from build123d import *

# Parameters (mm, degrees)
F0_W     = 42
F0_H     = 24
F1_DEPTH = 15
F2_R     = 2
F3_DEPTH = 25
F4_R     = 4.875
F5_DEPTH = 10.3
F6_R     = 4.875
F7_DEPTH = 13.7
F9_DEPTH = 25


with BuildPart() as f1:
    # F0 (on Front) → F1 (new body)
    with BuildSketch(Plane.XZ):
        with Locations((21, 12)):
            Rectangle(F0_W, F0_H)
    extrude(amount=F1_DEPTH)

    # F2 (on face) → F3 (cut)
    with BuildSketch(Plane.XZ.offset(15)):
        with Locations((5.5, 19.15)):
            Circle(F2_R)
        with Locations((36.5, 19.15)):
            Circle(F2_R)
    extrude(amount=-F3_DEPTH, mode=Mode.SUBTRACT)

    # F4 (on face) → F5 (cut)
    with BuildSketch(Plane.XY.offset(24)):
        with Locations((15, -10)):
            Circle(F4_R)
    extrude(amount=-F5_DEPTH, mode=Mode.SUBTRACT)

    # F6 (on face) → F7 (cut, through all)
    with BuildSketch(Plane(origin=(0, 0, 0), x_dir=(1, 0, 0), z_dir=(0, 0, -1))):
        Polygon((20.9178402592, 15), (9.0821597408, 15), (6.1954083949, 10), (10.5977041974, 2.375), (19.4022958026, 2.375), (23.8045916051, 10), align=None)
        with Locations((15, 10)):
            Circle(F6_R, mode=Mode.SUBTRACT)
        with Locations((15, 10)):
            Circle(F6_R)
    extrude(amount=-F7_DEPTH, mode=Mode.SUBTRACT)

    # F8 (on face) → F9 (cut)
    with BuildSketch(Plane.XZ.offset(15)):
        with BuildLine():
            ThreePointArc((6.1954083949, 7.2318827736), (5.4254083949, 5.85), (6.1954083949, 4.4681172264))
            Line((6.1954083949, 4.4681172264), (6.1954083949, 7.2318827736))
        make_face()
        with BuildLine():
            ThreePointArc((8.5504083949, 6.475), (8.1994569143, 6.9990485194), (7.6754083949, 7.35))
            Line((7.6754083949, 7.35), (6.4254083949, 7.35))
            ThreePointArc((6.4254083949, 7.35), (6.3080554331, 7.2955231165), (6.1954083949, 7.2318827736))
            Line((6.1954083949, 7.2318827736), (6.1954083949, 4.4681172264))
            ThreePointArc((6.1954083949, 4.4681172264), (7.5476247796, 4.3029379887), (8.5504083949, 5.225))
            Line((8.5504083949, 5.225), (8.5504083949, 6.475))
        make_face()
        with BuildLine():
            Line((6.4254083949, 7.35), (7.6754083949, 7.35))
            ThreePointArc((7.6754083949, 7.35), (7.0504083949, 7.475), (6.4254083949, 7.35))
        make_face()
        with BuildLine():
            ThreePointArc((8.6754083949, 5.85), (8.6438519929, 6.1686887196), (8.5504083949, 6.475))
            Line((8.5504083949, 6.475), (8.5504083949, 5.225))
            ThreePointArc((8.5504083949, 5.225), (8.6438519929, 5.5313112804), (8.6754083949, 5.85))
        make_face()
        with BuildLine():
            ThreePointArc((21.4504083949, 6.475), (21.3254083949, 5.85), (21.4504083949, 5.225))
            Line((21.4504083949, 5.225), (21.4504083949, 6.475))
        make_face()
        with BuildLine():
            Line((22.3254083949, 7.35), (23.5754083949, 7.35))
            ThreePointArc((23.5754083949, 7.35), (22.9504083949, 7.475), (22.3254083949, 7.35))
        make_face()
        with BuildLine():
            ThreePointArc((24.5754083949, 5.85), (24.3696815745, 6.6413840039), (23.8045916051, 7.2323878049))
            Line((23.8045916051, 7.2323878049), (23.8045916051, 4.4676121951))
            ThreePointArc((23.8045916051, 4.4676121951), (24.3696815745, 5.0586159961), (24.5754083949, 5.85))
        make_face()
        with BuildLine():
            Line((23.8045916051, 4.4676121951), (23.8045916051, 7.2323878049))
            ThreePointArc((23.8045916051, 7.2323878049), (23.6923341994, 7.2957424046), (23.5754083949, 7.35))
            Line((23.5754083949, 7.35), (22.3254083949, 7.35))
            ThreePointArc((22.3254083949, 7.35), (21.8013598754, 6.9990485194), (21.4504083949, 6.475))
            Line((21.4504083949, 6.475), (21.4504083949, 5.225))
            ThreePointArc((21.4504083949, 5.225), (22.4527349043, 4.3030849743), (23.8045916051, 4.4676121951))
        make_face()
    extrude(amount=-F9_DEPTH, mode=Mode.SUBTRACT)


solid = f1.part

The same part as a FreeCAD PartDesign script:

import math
import FreeCAD as App
import Part
import Sketcher

V = App.Vector
Q = App.Units.Quantity


def add_polygon(sketch, points):
    """Adds a closed chain of lines whose ends are joined by coincident constraints."""
    first, n = sketch.GeometryCount, len(points)
    for a, b in zip(points, points[1:] + points[:1]):
        sketch.addGeometry(Part.LineSegment(App.Vector(*a, 0), App.Vector(*b, 0)), False)
    for i in range(n):
        sketch.addConstraint(Sketcher.Constraint("Coincident", first + i, 2, first + (i + 1) % n, 1))

doc = App.newDocument("Part")
params = doc.addObject("Spreadsheet::Sheet", "Params")
for row, (alias, value) in enumerate([
    ("sketch1_width", "42 mm"),
    ("sketch1_height", "24 mm"),
    ("pad1_length", "15 mm"),
    ("sketch2_diameter", "4 mm"),
    ("pocket1_length", "25 mm"),
    ("sketch3_diameter", "9.75 mm"),
    ("pocket2_length", "10.3 mm"),
    ("pocket3_length", "13.7 mm"),
    ("pocket4_length", "25 mm"),
], start=1):
    params.set(f"A{row}", alias)
    params.set(f"B{row}", "=" + value)
    params.setAlias(f"B{row}", alias)

body = doc.addObject("PartDesign::Body", "Body")

# Sketch on XZ plane
sketch1 = body.newObject("Sketcher::SketchObject", "Sketch")
sketch1.AttachmentSupport = (doc.getObject("XZ_Plane"), [""])
sketch1.MapMode = "FlatFace"
add_polygon(sketch1, [(0, 24), (0, 0), (42, 0), (42, 24)])  # lines 0-3
sketch1.addConstraint(Sketcher.Constraint("Vertical", 0))
sketch1.addConstraint(Sketcher.Constraint("Horizontal", 1))
sketch1.addConstraint(Sketcher.Constraint("Vertical", 2))
sketch1.addConstraint(Sketcher.Constraint("Horizontal", 3))
sketch1.addConstraint(Sketcher.Constraint("Coincident", 0, 2, -1, 1))
sketch1.addConstraint(Sketcher.Constraint("DistanceX", 1, 1, 1, 2, Q("42 mm")))
sketch1.addConstraint(Sketcher.Constraint("DistanceY", 0, 2, 0, 1, Q("24 mm")))
sketch1.setExpression("Constraints[9]", "Params.sketch1_width")
sketch1.setExpression("Constraints[10]", "Params.sketch1_height")
pad1 = body.newObject("PartDesign::Pad", "Pad")
pad1.Profile = sketch1
pad1.setExpression("Length", "Params.pad1_length")

# Sketch on XZ plane
sketch2 = body.newObject("Sketcher::SketchObject", "Sketch001")
sketch2.AttachmentSupport = (doc.getObject("XZ_Plane"), [""])
sketch2.MapMode = "FlatFace"
sketch2.AttachmentOffset = App.Placement(V(0, 0, 15), App.Rotation())
sketch2.addGeometry(Part.Circle(V(5.5, 19.15, 0), V(0, 0, 1), 2), False)
sketch2.addGeometry(Part.Circle(V(36.5, 19.15, 0), V(0, 0, 1), 2), False)
sketch2.addConstraint(Sketcher.Constraint("Equal", 0, 1))
sketch2.addConstraint(Sketcher.Constraint("Horizontal", 0, 3, 1, 3))
sketch2.addConstraint(Sketcher.Constraint("Diameter", 0, Q("4 mm")))
sketch2.addConstraint(Sketcher.Constraint("DistanceX", 0, 3, 1, 3, Q("31 mm")))
sketch2.addConstraint(Sketcher.Constraint("DistanceX", -1, 1, 0, 3, Q("5.5 mm")))
sketch2.addConstraint(Sketcher.Constraint("DistanceY", -1, 1, 0, 3, Q("19.15 mm")))
sketch2.setExpression("Constraints[2]", "Params.sketch2_diameter")
pocket1 = body.newObject("PartDesign::Pocket", "Pocket")
pocket1.Profile = sketch2
pocket1.setExpression("Length", "Params.pocket1_length")

# Sketch on XY plane
sketch3 = body.newObject("Sketcher::SketchObject", "Sketch002")
sketch3.AttachmentSupport = (doc.getObject("XY_Plane"), [""])
sketch3.MapMode = "FlatFace"
sketch3.AttachmentOffset = App.Placement(V(0, 0, 24), App.Rotation())
sketch3.addGeometry(Part.Circle(V(15, -10, 0), V(0, 0, 1), 4.875), False)
sketch3.addConstraint(Sketcher.Constraint("Diameter", 0, Q("9.75 mm")))
sketch3.addConstraint(Sketcher.Constraint("DistanceX", -1, 1, 0, 3, Q("15 mm")))
sketch3.addConstraint(Sketcher.Constraint("DistanceY", 0, 3, -1, 1, Q("10 mm")))
sketch3.setExpression("Constraints[0]", "Params.sketch3_diameter")
pocket2 = body.newObject("PartDesign::Pocket", "Pocket001")
pocket2.Profile = sketch3
pocket2.setExpression("Length", "Params.pocket2_length")

# Sketch on XY plane
sketch4 = body.newObject("Sketcher::SketchObject", "Sketch003")
sketch4.AttachmentSupport = (doc.getObject("XY_Plane"), [""])
sketch4.MapMode = "FlatFace"
add_polygon(sketch4, [(20.91784, -15), (9.08216, -15), (6.195408, -10), (10.597704, -2.375), (19.402296, -2.375), (23.804592, -10)])  # lines 0-5
sketch4.addConstraint(Sketcher.Constraint("Horizontal", 0))
sketch4.addConstraint(Sketcher.Constraint("Horizontal", 3))
sketch4.addConstraint(Sketcher.Constraint("Parallel", 1, 4))
sketch4.addConstraint(Sketcher.Constraint("Parallel", 2, 5))
sketch4.addConstraint(Sketcher.Constraint("Horizontal", 1, 2, 4, 2))
sketch4.addConstraint(Sketcher.Constraint("Equal", 2, 4))
sketch4.addConstraint(Sketcher.Constraint("Angle", 1, Q("120 deg")))
sketch4.addConstraint(Sketcher.Constraint("DistanceY", 0, 2, -1, 1, Q("15 mm")))
sketch4.addConstraint(Sketcher.Constraint("DistanceY", 1, 2, -1, 1, Q("10 mm")))
sketch4.addConstraint(Sketcher.Constraint("DistanceY", 2, 2, -1, 1, Q("2.375 mm")))
sketch4.addConstraint(Sketcher.Constraint("DistanceX", 0, 2, 0, 1, Q("11.835681 mm")))
sketch4.addConstraint(Sketcher.Constraint("DistanceX", -1, 1, 0, 2, Q("9.08216 mm")))
pocket3 = body.newObject("PartDesign::Pocket", "Pocket002")
pocket3.Profile = sketch4
pocket3.setExpression("Length", "Params.pocket3_length")
pocket3.Reversed = True

# Sketch on XZ plane
sketch5 = body.newObject("Sketcher::SketchObject", "Sketch004")
sketch5.AttachmentSupport = (doc.getObject("XZ_Plane"), [""])
sketch5.MapMode = "FlatFace"
sketch5.AttachmentOffset = App.Placement(V(0, 0, 15), App.Rotation())
sketch5.addGeometry(Part.ArcOfCircle(Part.Circle(V(7.050408, 5.85, 0), V(0, 0, 1), 1.625), math.radians(121.745952), math.radians(238.254048)), False)
sketch5.addGeometry(Part.ArcOfCircle(Part.Circle(V(7.050408, 5.85, 0), V(0, 0, 1), 1.625), math.radians(-121.745952), math.radians(-22.619865)), False)
sketch5.addGeometry(Part.ArcOfCircle(Part.Circle(V(7.050408, 5.85, 0), V(0, 0, 1), 1.625), math.radians(-22.619865), math.radians(0)), False)
sketch5.addGeometry(Part.ArcOfCircle(Part.Circle(V(7.050408, 5.85, 0), V(0, 0, 1), 1.625), math.radians(0), math.radians(22.619865)), False)
sketch5.addGeometry(Part.ArcOfCircle(Part.Circle(V(7.050408, 5.85, 0), V(0, 0, 1), 1.625), math.radians(22.619865), math.radians(67.380135)), False)
sketch5.addGeometry(Part.ArcOfCircle(Part.Circle(V(7.050408, 5.85, 0), V(0, 0, 1), 1.625), math.radians(67.380135), math.radians(112.619865)), False)
sketch5.addGeometry(Part.ArcOfCircle(Part.Circle(V(7.050408, 5.85, 0), V(0, 0, 1), 1.625), math.radians(112.619865), math.radians(121.745952)), False)
sketch5.addGeometry(Part.ArcOfCircle(Part.Circle(V(22.950408, 5.85, 0), V(0, 0, 1), 1.625), math.radians(157.380135), math.radians(202.619865)), False)
sketch5.addGeometry(Part.ArcOfCircle(Part.Circle(V(22.950408, 5.85, 0), V(0, 0, 1), 1.625), math.radians(-157.380135), math.radians(-58.287908)), False)
sketch5.addGeometry(Part.ArcOfCircle(Part.Circle(V(22.950408, 5.85, 0), V(0, 0, 1), 1.625), math.radians(-58.287908), math.radians(0)), False)
sketch5.addGeometry(Part.ArcOfCircle(Part.Circle(V(22.950408, 5.85, 0), V(0, 0, 1), 1.625), math.radians(0), math.radians(58.287908)), False)
sketch5.addGeometry(Part.ArcOfCircle(Part.Circle(V(22.950408, 5.85, 0), V(0, 0, 1), 1.625), math.radians(58.287908), math.radians(67.380135)), False)
sketch5.addGeometry(Part.ArcOfCircle(Part.Circle(V(22.950408, 5.85, 0), V(0, 0, 1), 1.625), math.radians(67.380135), math.radians(112.619865)), False)
sketch5.addGeometry(Part.ArcOfCircle(Part.Circle(V(22.950408, 5.85, 0), V(0, 0, 1), 1.625), math.radians(112.619865), math.radians(157.380135)), False)
sketch5.addConstraint(Sketcher.Constraint("Tangent", 0, 2, 1, 1))
sketch5.addConstraint(Sketcher.Constraint("Tangent", 1, 2, 2, 1))
sketch5.addConstraint(Sketcher.Constraint("Tangent", 2, 2, 3, 1))
sketch5.addConstraint(Sketcher.Constraint("Tangent", 3, 2, 4, 1))
sketch5.addConstraint(Sketcher.Constraint("Tangent", 4, 2, 5, 1))
sketch5.addConstraint(Sketcher.Constraint("Tangent", 5, 2, 6, 1))
sketch5.addConstraint(Sketcher.Constraint("Tangent", 6, 2, 0, 1))
sketch5.addConstraint(Sketcher.Constraint("Tangent", 7, 2, 8, 1))
sketch5.addConstraint(Sketcher.Constraint("Tangent", 8, 2, 9, 1))
sketch5.addConstraint(Sketcher.Constraint("Tangent", 9, 2, 10, 1))
sketch5.addConstraint(Sketcher.Constraint("Tangent", 10, 2, 11, 1))
sketch5.addConstraint(Sketcher.Constraint("Tangent", 11, 2, 12, 1))
sketch5.addConstraint(Sketcher.Constraint("Tangent", 12, 2, 13, 1))
sketch5.addConstraint(Sketcher.Constraint("Tangent", 13, 2, 7, 1))
sketch5.addConstraint(Sketcher.Constraint("Coincident", 2, 3, 0, 3))
sketch5.addConstraint(Sketcher.Constraint("Coincident", 4, 3, 0, 3))
sketch5.addConstraint(Sketcher.Constraint("Coincident", 9, 3, 7, 3))
sketch5.addConstraint(Sketcher.Constraint("Coincident", 11, 3, 7, 3))
sketch5.addConstraint(Sketcher.Constraint("Equal", 6, 7))
sketch5.addConstraint(Sketcher.Constraint("Horizontal", 6, 3, 7, 3))
sketch5.addConstraint(Sketcher.Constraint("Horizontal", 13, 3, 2, 2))
sketch5.addConstraint(Sketcher.Constraint("Horizontal", 4, 2, 5, 2))
sketch5.addConstraint(Sketcher.Constraint("Horizontal", 1, 2, 7, 2))
sketch5.addConstraint(Sketcher.Constraint("Horizontal", 2, 2, 9, 2))
sketch5.addConstraint(Sketcher.Constraint("Horizontal", 5, 2, 11, 2))
sketch5.addConstraint(Sketcher.Constraint("Horizontal", 11, 2, 12, 2))
sketch5.addConstraint(Sketcher.Constraint("Horizontal", 3, 2, 13, 2))
sketch5.addConstraint(Sketcher.Constraint("Vertical", 1, 2, 3, 2))
sketch5.addConstraint(Sketcher.Constraint("Vertical", 0, 2, 6, 2))
sketch5.addConstraint(Sketcher.Constraint("Vertical", 8, 2, 10, 2))
sketch5.addConstraint(Sketcher.Constraint("Radius", 0, Q("1.625 mm")))
sketch5.addConstraint(Sketcher.Constraint("DistanceX", 0, 3, 7, 3, Q("15.9 mm")))
sketch5.addConstraint(Sketcher.Constraint("DistanceX", 0, 3, 1, 2, Q("1.5 mm")))
sketch5.addConstraint(Sketcher.Constraint("DistanceY", 6, 3, 4, 2, Q("1.5 mm")))
sketch5.addConstraint(Sketcher.Constraint("DistanceY", -1, 1, 0, 3, Q("5.85 mm")))
sketch5.addConstraint(Sketcher.Constraint("DistanceX", 6, 2, 5, 2, Q("0.23 mm")))
sketch5.addConstraint(Sketcher.Constraint("DistanceX", -1, 1, 0, 3, Q("7.050408 mm")))
sketch5.addConstraint(Sketcher.Constraint("DistanceX", -1, 1, 8, 2, Q("23.804592 mm")))
pocket4 = body.newObject("PartDesign::Pocket", "Pocket003")
pocket4.Profile = sketch5
pocket4.setExpression("Length", "Params.pocket4_length")

doc.recompute()
